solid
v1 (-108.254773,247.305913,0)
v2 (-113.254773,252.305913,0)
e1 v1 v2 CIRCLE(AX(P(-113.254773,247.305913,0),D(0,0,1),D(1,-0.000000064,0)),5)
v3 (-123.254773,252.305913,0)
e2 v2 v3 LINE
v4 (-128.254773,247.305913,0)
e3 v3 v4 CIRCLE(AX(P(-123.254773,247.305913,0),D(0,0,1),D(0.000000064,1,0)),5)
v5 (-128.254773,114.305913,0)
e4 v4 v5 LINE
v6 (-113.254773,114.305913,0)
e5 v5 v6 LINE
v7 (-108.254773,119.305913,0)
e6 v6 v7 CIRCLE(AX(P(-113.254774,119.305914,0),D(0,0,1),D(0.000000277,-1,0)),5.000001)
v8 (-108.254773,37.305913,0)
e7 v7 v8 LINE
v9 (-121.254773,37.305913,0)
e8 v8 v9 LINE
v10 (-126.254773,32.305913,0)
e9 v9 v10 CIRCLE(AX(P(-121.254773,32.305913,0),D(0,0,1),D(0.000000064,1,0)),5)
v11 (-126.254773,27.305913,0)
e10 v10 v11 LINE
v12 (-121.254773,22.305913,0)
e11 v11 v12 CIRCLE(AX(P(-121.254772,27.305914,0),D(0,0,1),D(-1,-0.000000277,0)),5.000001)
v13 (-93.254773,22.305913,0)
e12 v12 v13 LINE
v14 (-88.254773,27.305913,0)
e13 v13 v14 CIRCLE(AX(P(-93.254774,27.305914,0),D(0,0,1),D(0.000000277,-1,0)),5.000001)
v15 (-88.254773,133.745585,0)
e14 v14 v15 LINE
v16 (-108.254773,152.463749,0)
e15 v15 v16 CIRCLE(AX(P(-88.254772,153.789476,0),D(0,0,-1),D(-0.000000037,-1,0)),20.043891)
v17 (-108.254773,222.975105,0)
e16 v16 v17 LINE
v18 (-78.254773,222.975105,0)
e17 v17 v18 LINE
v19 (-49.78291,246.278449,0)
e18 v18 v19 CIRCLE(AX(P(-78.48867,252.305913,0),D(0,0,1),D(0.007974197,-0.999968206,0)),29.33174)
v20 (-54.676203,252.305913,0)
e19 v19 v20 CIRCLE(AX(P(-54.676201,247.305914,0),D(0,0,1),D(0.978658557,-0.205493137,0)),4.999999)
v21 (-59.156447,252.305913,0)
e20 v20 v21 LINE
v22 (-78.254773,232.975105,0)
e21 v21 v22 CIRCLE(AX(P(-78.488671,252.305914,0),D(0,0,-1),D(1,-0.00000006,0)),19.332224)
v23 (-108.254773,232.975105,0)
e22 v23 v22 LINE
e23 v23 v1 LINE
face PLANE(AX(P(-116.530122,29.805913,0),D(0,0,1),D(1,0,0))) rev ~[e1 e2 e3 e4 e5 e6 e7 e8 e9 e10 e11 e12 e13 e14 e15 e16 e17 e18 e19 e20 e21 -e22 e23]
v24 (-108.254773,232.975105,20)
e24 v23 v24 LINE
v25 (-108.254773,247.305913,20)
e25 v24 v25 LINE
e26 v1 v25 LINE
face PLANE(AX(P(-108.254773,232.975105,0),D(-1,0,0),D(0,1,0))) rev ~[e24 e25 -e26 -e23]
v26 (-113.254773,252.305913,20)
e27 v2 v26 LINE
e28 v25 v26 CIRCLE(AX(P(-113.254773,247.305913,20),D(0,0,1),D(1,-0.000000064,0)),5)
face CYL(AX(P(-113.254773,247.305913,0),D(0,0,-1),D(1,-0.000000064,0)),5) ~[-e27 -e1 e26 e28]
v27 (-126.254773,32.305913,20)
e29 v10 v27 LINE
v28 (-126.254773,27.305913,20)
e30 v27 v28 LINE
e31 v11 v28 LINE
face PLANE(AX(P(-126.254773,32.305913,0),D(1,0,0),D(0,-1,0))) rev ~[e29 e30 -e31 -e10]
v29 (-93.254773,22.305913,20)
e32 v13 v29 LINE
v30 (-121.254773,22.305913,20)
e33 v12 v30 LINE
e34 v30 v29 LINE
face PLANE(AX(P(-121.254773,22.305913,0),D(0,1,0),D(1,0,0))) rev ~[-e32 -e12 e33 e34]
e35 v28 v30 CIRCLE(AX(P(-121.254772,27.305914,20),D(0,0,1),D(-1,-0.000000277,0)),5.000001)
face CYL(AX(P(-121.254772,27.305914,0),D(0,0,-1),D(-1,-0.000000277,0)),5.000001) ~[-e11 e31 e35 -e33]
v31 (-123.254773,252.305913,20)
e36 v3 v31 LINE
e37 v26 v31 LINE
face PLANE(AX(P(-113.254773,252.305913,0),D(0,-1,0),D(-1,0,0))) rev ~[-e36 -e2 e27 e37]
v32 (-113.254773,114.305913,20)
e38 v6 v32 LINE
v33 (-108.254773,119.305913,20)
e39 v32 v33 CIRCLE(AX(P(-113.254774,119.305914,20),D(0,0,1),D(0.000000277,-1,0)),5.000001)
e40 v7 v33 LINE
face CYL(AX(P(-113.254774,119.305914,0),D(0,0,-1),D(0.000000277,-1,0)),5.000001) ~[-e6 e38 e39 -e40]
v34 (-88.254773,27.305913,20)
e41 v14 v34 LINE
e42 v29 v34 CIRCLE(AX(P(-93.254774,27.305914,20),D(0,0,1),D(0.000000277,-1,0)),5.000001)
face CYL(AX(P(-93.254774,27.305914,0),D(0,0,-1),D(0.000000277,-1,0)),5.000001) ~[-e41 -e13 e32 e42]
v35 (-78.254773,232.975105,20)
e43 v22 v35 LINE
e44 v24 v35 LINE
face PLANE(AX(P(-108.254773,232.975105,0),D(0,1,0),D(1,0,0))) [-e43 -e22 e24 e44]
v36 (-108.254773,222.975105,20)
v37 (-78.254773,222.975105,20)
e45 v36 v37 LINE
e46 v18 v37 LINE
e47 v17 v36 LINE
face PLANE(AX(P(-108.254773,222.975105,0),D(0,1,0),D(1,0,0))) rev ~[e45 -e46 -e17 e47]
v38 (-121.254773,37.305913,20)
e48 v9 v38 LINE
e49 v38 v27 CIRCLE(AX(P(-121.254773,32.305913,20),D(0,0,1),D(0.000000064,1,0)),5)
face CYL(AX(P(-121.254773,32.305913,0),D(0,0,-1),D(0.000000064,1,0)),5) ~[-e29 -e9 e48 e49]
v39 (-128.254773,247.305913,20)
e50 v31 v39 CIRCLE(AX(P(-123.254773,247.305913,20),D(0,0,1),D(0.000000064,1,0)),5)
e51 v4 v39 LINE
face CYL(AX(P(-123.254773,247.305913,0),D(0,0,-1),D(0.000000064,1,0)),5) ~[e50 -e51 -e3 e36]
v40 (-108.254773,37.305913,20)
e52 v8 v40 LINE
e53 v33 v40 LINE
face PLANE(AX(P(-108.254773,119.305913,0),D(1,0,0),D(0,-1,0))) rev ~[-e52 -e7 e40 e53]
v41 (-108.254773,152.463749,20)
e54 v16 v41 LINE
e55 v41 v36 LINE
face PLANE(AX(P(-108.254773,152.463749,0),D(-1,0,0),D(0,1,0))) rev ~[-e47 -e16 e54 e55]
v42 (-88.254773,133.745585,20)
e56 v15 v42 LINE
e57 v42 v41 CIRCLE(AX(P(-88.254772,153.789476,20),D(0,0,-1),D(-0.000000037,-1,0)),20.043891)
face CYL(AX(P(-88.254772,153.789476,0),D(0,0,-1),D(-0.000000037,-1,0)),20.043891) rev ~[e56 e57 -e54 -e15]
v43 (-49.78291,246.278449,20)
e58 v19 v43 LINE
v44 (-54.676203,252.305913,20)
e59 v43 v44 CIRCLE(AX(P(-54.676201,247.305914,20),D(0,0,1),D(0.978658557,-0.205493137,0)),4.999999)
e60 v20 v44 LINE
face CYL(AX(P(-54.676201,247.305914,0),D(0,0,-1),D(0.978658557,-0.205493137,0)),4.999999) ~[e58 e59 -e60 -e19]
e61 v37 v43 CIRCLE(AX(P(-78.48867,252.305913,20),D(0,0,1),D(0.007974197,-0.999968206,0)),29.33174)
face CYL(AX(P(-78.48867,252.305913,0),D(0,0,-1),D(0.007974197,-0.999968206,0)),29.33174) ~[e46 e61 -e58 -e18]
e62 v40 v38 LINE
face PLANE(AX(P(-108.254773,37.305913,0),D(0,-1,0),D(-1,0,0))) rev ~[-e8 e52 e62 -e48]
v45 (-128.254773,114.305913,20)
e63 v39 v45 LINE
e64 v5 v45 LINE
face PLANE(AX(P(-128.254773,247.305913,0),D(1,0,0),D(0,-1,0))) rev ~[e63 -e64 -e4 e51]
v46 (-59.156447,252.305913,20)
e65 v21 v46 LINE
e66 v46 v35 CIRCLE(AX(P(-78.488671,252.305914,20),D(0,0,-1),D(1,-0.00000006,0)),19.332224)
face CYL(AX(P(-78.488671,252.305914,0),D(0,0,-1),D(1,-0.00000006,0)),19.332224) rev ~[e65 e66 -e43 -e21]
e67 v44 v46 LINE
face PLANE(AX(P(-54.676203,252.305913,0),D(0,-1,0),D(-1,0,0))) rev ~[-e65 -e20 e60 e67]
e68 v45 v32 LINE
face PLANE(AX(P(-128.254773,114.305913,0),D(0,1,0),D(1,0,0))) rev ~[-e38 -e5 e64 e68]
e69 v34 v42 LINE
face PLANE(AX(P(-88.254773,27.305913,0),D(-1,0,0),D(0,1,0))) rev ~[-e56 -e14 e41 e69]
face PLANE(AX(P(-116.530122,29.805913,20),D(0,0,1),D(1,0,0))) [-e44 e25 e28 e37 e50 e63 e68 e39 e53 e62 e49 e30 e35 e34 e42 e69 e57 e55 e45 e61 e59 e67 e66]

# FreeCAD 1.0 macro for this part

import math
import FreeCAD as App
import Part
import Sketcher

doc = App.newDocument("Part")
body = doc.addObject("PartDesign::Body", "Body")

# Sketch on XY plane
sketch1 = body.newObject("Sketcher::SketchObject", "Sketch")
sketch1.AttachmentSupport = (doc.getObject("XY_Plane"), [""])
sketch1.MapMode = "FlatFace"
sketch1.addGeometry([
    Part.LineSegment(App.Vector(-108.3, 37.3, 0), App.Vector(-121.3, 37.3, 0)),  # 0
    Part.ArcOfCircle(Part.Circle(App.Vector(-121.3, 32.3, 0), App.Vector(0, 0, 1), 5), math.radians(90), math.radians(180)),  # 1
    Part.LineSegment(App.Vector(-126.3, 32.3, 0), App.Vector(-126.3, 27.3, 0)),  # 2
    Part.ArcOfCircle(Part.Circle(App.Vector(-121.3, 27.3, 0), App.Vector(0, 0, 1), 5), math.radians(-180), math.radians(-90)),  # 3
    Part.LineSegment(App.Vector(-121.3, 22.3, 0), App.Vector(-93.3, 22.3, 0)),  # 4
    Part.ArcOfCircle(Part.Circle(App.Vector(-93.3, 27.3, 0), App.Vector(0, 0, 1), 5), math.radians(-90), math.radians(0)),  # 5
    Part.LineSegment(App.Vector(-88.3, 27.3, 0), App.Vector(-88.3, 133.7, 0)),  # 6
    Part.ArcOfCircle(Part.Circle(App.Vector(-88.3, 153.8, 0), App.Vector(0, 0, 1), 20), math.radians(-176), math.radians(-90)),  # 7
    Part.LineSegment(App.Vector(-108.3, 152.5, 0), App.Vector(-108.3, 223, 0)),  # 8
    Part.LineSegment(App.Vector(-108.3, 223, 0), App.Vector(-78.3, 223, 0)),  # 9
    Part.ArcOfCircle(Part.Circle(App.Vector(-78.5, 252.3, 0), App.Vector(0, 0, 1), 29.3), math.radians(-90), math.radians(-12)),  # 10
    Part.ArcOfCircle(Part.Circle(App.Vector(-54.7, 247.3, 0), App.Vector(0, 0, 1), 5), math.radians(-12), math.radians(90)),  # 11
    Part.LineSegment(App.Vector(-54.7, 252.3, 0), App.Vector(-59.2, 252.3, 0)),  # 12
    Part.ArcOfCircle(Part.Circle(App.Vector(-78.5, 252.3, 0), App.Vector(0, 0, 1), 19.3), math.radians(-89), math.radians(0)),  # 13
    Part.LineSegment(App.Vector(-78.3, 233, 0), App.Vector(-108.3, 233, 0)),  # 14
    Part.LineSegment(App.Vector(-108.3, 233, 0), App.Vector(-108.3, 247.3, 0)),  # 15
    Part.ArcOfCircle(Part.Circle(App.Vector(-113.3, 247.3, 0), App.Vector(0, 0, 1), 5), math.radians(0), math.radians(90)),  # 16
    Part.LineSegment(App.Vector(-113.3, 252.3, 0), App.Vector(-123.3, 252.3, 0)),  # 17
    Part.ArcOfCircle(Part.Circle(App.Vector(-123.3, 247.3, 0), App.Vector(0, 0, 1), 5), math.radians(90), math.radians(180)),  # 18
    Part.LineSegment(App.Vector(-128.3, 247.3, 0), App.Vector(-128.3, 114.3, 0)),  # 19
    Part.LineSegment(App.Vector(-128.3, 114.3, 0), App.Vector(-113.3, 114.3, 0)),  # 20
    Part.ArcOfCircle(Part.Circle(App.Vector(-113.3, 119.3, 0), App.Vector(0, 0, 1), 5), math.radians(-90), math.radians(0)),  # 21
    Part.LineSegment(App.Vector(-108.3, 119.3, 0), App.Vector(-108.3, 37.3, 0)),  # 22
], False)
sketch1.addConstraint([
    Sketcher.Constraint("Tangent", 0, 2, 1, 1),
    Sketcher.Constraint("Tangent", 1, 2, 2, 1),
    Sketcher.Constraint("Tangent", 2, 2, 3, 1),
    Sketcher.Constraint("Tangent", 3, 2, 4, 1),
    Sketcher.Constraint("Tangent", 4, 2, 5, 1),
    Sketcher.Constraint("Tangent", 5, 2, 6, 1),
    Sketcher.Constraint("Coincident", 6, 2, 7, 2),
    Sketcher.Constraint("Coincident", 7, 1, 8, 1),
    Sketcher.Constraint("Coincident", 8, 2, 9, 1),
    Sketcher.Constraint("Coincident", 9, 2, 10, 1),
    Sketcher.Constraint("Tangent", 10, 2, 11, 1),
    Sketcher.Constraint("Tangent", 11, 2, 12, 1),
    Sketcher.Constraint("Coincident", 12, 2, 13, 2),
    Sketcher.Constraint("Coincident", 13, 1, 14, 1),
    Sketcher.Constraint("Coincident", 14, 2, 15, 1),
    Sketcher.Constraint("Tangent", 15, 2, 16, 1),
    Sketcher.Constraint("Tangent", 16, 2, 17, 1),
    Sketcher.Constraint("Tangent", 17, 2, 18, 1),
    Sketcher.Constraint("Tangent", 18, 2, 19, 1),
    Sketcher.Constraint("Coincident", 19, 2, 20, 1),
    Sketcher.Constraint("Tangent", 20, 2, 21, 1),
    Sketcher.Constraint("Tangent", 21, 2, 22, 1),
    Sketcher.Constraint("Coincident", 22, 2, 0, 1),
    Sketcher.Constraint("Horizontal", 0),
    Sketcher.Constraint("Vertical", 2),
    Sketcher.Constraint("Horizontal", 4),
    Sketcher.Constraint("Vertical", 6),
    Sketcher.Constraint("Vertical", 8),
    Sketcher.Constraint("Horizontal", 9),
    Sketcher.Constraint("Horizontal", 12),
    Sketcher.Constraint("Horizontal", 14),
    Sketcher.Constraint("Vertical", 15),
    Sketcher.Constraint("Horizontal", 17),
    Sketcher.Constraint("Vertical", 19),
    Sketcher.Constraint("Horizontal", 20),
    Sketcher.Constraint("Vertical", 22),
    Sketcher.Constraint("Coincident", 13, 3, 10, 3),
    Sketcher.Constraint("Equal", 1, 3),
    Sketcher.Constraint("Equal", 3, 5),
    Sketcher.Constraint("Equal", 1, 11),
    Sketcher.Constraint("Equal", 11, 16),
    Sketcher.Constraint("Equal", 16, 18),
    Sketcher.Constraint("Equal", 18, 21),
    Sketcher.Constraint("Horizontal", 11, 3, 16, 3),
    Sketcher.Constraint("Horizontal", 13, 3, 11, 2),
    Sketcher.Constraint("Vertical", 16, 3, 21, 3),
    Sketcher.Constraint("Vertical", 7, 3, 5, 2),
    Sketcher.Constraint("Vertical", 9, 2, 13, 1),
    Sketcher.Constraint("Vertical", 8, 2, 14, 2),
    Sketcher.Constraint("Radius", 1, 5.0),
    Sketcher.Constraint("DistanceX", 0, 2, 0, 1, 13.0),
    Sketcher.Constraint("DistanceX", 4, 1, 4, 2, 28.0),
    Sketcher.Constraint("DistanceX", 9, 1, 9, 2, 30.0),
    Sketcher.Constraint("DistanceX", 17, 2, 17, 1, 10.0),
    Sketcher.Constraint("DistanceY", 2, 2, 2, 1, 5.0),
    Sketcher.Constraint("DistanceY", 19, 2, 19, 1, 133.0),
    Sketcher.Constraint("DistanceY", 22, 2, 22, 1, 82.0),
    Sketcher.Constraint("DistanceY", 9, 2, 13, 1, 10.0),
    Sketcher.Constraint("Radius", 7, 20.043891),
    Sketcher.Constraint("Radius", 10, 29.33174),
    Sketcher.Constraint("DistanceY", 6, 1, 6, 2, 106.439672),
    Sketcher.Constraint("DistanceX", 11, 3, -1, 1, 54.676201),
    Sketcher.Constraint("DistanceX", 3, 3, 10, 3, 42.766102),
    Sketcher.Constraint("DistanceY", -1, 1, 7, 1, 152.463749),
])
pad1 = body.newObject("PartDesign::Pad", "Pad")
pad1.Profile = sketch1
pad1.Length = 20

doc.recompute()
